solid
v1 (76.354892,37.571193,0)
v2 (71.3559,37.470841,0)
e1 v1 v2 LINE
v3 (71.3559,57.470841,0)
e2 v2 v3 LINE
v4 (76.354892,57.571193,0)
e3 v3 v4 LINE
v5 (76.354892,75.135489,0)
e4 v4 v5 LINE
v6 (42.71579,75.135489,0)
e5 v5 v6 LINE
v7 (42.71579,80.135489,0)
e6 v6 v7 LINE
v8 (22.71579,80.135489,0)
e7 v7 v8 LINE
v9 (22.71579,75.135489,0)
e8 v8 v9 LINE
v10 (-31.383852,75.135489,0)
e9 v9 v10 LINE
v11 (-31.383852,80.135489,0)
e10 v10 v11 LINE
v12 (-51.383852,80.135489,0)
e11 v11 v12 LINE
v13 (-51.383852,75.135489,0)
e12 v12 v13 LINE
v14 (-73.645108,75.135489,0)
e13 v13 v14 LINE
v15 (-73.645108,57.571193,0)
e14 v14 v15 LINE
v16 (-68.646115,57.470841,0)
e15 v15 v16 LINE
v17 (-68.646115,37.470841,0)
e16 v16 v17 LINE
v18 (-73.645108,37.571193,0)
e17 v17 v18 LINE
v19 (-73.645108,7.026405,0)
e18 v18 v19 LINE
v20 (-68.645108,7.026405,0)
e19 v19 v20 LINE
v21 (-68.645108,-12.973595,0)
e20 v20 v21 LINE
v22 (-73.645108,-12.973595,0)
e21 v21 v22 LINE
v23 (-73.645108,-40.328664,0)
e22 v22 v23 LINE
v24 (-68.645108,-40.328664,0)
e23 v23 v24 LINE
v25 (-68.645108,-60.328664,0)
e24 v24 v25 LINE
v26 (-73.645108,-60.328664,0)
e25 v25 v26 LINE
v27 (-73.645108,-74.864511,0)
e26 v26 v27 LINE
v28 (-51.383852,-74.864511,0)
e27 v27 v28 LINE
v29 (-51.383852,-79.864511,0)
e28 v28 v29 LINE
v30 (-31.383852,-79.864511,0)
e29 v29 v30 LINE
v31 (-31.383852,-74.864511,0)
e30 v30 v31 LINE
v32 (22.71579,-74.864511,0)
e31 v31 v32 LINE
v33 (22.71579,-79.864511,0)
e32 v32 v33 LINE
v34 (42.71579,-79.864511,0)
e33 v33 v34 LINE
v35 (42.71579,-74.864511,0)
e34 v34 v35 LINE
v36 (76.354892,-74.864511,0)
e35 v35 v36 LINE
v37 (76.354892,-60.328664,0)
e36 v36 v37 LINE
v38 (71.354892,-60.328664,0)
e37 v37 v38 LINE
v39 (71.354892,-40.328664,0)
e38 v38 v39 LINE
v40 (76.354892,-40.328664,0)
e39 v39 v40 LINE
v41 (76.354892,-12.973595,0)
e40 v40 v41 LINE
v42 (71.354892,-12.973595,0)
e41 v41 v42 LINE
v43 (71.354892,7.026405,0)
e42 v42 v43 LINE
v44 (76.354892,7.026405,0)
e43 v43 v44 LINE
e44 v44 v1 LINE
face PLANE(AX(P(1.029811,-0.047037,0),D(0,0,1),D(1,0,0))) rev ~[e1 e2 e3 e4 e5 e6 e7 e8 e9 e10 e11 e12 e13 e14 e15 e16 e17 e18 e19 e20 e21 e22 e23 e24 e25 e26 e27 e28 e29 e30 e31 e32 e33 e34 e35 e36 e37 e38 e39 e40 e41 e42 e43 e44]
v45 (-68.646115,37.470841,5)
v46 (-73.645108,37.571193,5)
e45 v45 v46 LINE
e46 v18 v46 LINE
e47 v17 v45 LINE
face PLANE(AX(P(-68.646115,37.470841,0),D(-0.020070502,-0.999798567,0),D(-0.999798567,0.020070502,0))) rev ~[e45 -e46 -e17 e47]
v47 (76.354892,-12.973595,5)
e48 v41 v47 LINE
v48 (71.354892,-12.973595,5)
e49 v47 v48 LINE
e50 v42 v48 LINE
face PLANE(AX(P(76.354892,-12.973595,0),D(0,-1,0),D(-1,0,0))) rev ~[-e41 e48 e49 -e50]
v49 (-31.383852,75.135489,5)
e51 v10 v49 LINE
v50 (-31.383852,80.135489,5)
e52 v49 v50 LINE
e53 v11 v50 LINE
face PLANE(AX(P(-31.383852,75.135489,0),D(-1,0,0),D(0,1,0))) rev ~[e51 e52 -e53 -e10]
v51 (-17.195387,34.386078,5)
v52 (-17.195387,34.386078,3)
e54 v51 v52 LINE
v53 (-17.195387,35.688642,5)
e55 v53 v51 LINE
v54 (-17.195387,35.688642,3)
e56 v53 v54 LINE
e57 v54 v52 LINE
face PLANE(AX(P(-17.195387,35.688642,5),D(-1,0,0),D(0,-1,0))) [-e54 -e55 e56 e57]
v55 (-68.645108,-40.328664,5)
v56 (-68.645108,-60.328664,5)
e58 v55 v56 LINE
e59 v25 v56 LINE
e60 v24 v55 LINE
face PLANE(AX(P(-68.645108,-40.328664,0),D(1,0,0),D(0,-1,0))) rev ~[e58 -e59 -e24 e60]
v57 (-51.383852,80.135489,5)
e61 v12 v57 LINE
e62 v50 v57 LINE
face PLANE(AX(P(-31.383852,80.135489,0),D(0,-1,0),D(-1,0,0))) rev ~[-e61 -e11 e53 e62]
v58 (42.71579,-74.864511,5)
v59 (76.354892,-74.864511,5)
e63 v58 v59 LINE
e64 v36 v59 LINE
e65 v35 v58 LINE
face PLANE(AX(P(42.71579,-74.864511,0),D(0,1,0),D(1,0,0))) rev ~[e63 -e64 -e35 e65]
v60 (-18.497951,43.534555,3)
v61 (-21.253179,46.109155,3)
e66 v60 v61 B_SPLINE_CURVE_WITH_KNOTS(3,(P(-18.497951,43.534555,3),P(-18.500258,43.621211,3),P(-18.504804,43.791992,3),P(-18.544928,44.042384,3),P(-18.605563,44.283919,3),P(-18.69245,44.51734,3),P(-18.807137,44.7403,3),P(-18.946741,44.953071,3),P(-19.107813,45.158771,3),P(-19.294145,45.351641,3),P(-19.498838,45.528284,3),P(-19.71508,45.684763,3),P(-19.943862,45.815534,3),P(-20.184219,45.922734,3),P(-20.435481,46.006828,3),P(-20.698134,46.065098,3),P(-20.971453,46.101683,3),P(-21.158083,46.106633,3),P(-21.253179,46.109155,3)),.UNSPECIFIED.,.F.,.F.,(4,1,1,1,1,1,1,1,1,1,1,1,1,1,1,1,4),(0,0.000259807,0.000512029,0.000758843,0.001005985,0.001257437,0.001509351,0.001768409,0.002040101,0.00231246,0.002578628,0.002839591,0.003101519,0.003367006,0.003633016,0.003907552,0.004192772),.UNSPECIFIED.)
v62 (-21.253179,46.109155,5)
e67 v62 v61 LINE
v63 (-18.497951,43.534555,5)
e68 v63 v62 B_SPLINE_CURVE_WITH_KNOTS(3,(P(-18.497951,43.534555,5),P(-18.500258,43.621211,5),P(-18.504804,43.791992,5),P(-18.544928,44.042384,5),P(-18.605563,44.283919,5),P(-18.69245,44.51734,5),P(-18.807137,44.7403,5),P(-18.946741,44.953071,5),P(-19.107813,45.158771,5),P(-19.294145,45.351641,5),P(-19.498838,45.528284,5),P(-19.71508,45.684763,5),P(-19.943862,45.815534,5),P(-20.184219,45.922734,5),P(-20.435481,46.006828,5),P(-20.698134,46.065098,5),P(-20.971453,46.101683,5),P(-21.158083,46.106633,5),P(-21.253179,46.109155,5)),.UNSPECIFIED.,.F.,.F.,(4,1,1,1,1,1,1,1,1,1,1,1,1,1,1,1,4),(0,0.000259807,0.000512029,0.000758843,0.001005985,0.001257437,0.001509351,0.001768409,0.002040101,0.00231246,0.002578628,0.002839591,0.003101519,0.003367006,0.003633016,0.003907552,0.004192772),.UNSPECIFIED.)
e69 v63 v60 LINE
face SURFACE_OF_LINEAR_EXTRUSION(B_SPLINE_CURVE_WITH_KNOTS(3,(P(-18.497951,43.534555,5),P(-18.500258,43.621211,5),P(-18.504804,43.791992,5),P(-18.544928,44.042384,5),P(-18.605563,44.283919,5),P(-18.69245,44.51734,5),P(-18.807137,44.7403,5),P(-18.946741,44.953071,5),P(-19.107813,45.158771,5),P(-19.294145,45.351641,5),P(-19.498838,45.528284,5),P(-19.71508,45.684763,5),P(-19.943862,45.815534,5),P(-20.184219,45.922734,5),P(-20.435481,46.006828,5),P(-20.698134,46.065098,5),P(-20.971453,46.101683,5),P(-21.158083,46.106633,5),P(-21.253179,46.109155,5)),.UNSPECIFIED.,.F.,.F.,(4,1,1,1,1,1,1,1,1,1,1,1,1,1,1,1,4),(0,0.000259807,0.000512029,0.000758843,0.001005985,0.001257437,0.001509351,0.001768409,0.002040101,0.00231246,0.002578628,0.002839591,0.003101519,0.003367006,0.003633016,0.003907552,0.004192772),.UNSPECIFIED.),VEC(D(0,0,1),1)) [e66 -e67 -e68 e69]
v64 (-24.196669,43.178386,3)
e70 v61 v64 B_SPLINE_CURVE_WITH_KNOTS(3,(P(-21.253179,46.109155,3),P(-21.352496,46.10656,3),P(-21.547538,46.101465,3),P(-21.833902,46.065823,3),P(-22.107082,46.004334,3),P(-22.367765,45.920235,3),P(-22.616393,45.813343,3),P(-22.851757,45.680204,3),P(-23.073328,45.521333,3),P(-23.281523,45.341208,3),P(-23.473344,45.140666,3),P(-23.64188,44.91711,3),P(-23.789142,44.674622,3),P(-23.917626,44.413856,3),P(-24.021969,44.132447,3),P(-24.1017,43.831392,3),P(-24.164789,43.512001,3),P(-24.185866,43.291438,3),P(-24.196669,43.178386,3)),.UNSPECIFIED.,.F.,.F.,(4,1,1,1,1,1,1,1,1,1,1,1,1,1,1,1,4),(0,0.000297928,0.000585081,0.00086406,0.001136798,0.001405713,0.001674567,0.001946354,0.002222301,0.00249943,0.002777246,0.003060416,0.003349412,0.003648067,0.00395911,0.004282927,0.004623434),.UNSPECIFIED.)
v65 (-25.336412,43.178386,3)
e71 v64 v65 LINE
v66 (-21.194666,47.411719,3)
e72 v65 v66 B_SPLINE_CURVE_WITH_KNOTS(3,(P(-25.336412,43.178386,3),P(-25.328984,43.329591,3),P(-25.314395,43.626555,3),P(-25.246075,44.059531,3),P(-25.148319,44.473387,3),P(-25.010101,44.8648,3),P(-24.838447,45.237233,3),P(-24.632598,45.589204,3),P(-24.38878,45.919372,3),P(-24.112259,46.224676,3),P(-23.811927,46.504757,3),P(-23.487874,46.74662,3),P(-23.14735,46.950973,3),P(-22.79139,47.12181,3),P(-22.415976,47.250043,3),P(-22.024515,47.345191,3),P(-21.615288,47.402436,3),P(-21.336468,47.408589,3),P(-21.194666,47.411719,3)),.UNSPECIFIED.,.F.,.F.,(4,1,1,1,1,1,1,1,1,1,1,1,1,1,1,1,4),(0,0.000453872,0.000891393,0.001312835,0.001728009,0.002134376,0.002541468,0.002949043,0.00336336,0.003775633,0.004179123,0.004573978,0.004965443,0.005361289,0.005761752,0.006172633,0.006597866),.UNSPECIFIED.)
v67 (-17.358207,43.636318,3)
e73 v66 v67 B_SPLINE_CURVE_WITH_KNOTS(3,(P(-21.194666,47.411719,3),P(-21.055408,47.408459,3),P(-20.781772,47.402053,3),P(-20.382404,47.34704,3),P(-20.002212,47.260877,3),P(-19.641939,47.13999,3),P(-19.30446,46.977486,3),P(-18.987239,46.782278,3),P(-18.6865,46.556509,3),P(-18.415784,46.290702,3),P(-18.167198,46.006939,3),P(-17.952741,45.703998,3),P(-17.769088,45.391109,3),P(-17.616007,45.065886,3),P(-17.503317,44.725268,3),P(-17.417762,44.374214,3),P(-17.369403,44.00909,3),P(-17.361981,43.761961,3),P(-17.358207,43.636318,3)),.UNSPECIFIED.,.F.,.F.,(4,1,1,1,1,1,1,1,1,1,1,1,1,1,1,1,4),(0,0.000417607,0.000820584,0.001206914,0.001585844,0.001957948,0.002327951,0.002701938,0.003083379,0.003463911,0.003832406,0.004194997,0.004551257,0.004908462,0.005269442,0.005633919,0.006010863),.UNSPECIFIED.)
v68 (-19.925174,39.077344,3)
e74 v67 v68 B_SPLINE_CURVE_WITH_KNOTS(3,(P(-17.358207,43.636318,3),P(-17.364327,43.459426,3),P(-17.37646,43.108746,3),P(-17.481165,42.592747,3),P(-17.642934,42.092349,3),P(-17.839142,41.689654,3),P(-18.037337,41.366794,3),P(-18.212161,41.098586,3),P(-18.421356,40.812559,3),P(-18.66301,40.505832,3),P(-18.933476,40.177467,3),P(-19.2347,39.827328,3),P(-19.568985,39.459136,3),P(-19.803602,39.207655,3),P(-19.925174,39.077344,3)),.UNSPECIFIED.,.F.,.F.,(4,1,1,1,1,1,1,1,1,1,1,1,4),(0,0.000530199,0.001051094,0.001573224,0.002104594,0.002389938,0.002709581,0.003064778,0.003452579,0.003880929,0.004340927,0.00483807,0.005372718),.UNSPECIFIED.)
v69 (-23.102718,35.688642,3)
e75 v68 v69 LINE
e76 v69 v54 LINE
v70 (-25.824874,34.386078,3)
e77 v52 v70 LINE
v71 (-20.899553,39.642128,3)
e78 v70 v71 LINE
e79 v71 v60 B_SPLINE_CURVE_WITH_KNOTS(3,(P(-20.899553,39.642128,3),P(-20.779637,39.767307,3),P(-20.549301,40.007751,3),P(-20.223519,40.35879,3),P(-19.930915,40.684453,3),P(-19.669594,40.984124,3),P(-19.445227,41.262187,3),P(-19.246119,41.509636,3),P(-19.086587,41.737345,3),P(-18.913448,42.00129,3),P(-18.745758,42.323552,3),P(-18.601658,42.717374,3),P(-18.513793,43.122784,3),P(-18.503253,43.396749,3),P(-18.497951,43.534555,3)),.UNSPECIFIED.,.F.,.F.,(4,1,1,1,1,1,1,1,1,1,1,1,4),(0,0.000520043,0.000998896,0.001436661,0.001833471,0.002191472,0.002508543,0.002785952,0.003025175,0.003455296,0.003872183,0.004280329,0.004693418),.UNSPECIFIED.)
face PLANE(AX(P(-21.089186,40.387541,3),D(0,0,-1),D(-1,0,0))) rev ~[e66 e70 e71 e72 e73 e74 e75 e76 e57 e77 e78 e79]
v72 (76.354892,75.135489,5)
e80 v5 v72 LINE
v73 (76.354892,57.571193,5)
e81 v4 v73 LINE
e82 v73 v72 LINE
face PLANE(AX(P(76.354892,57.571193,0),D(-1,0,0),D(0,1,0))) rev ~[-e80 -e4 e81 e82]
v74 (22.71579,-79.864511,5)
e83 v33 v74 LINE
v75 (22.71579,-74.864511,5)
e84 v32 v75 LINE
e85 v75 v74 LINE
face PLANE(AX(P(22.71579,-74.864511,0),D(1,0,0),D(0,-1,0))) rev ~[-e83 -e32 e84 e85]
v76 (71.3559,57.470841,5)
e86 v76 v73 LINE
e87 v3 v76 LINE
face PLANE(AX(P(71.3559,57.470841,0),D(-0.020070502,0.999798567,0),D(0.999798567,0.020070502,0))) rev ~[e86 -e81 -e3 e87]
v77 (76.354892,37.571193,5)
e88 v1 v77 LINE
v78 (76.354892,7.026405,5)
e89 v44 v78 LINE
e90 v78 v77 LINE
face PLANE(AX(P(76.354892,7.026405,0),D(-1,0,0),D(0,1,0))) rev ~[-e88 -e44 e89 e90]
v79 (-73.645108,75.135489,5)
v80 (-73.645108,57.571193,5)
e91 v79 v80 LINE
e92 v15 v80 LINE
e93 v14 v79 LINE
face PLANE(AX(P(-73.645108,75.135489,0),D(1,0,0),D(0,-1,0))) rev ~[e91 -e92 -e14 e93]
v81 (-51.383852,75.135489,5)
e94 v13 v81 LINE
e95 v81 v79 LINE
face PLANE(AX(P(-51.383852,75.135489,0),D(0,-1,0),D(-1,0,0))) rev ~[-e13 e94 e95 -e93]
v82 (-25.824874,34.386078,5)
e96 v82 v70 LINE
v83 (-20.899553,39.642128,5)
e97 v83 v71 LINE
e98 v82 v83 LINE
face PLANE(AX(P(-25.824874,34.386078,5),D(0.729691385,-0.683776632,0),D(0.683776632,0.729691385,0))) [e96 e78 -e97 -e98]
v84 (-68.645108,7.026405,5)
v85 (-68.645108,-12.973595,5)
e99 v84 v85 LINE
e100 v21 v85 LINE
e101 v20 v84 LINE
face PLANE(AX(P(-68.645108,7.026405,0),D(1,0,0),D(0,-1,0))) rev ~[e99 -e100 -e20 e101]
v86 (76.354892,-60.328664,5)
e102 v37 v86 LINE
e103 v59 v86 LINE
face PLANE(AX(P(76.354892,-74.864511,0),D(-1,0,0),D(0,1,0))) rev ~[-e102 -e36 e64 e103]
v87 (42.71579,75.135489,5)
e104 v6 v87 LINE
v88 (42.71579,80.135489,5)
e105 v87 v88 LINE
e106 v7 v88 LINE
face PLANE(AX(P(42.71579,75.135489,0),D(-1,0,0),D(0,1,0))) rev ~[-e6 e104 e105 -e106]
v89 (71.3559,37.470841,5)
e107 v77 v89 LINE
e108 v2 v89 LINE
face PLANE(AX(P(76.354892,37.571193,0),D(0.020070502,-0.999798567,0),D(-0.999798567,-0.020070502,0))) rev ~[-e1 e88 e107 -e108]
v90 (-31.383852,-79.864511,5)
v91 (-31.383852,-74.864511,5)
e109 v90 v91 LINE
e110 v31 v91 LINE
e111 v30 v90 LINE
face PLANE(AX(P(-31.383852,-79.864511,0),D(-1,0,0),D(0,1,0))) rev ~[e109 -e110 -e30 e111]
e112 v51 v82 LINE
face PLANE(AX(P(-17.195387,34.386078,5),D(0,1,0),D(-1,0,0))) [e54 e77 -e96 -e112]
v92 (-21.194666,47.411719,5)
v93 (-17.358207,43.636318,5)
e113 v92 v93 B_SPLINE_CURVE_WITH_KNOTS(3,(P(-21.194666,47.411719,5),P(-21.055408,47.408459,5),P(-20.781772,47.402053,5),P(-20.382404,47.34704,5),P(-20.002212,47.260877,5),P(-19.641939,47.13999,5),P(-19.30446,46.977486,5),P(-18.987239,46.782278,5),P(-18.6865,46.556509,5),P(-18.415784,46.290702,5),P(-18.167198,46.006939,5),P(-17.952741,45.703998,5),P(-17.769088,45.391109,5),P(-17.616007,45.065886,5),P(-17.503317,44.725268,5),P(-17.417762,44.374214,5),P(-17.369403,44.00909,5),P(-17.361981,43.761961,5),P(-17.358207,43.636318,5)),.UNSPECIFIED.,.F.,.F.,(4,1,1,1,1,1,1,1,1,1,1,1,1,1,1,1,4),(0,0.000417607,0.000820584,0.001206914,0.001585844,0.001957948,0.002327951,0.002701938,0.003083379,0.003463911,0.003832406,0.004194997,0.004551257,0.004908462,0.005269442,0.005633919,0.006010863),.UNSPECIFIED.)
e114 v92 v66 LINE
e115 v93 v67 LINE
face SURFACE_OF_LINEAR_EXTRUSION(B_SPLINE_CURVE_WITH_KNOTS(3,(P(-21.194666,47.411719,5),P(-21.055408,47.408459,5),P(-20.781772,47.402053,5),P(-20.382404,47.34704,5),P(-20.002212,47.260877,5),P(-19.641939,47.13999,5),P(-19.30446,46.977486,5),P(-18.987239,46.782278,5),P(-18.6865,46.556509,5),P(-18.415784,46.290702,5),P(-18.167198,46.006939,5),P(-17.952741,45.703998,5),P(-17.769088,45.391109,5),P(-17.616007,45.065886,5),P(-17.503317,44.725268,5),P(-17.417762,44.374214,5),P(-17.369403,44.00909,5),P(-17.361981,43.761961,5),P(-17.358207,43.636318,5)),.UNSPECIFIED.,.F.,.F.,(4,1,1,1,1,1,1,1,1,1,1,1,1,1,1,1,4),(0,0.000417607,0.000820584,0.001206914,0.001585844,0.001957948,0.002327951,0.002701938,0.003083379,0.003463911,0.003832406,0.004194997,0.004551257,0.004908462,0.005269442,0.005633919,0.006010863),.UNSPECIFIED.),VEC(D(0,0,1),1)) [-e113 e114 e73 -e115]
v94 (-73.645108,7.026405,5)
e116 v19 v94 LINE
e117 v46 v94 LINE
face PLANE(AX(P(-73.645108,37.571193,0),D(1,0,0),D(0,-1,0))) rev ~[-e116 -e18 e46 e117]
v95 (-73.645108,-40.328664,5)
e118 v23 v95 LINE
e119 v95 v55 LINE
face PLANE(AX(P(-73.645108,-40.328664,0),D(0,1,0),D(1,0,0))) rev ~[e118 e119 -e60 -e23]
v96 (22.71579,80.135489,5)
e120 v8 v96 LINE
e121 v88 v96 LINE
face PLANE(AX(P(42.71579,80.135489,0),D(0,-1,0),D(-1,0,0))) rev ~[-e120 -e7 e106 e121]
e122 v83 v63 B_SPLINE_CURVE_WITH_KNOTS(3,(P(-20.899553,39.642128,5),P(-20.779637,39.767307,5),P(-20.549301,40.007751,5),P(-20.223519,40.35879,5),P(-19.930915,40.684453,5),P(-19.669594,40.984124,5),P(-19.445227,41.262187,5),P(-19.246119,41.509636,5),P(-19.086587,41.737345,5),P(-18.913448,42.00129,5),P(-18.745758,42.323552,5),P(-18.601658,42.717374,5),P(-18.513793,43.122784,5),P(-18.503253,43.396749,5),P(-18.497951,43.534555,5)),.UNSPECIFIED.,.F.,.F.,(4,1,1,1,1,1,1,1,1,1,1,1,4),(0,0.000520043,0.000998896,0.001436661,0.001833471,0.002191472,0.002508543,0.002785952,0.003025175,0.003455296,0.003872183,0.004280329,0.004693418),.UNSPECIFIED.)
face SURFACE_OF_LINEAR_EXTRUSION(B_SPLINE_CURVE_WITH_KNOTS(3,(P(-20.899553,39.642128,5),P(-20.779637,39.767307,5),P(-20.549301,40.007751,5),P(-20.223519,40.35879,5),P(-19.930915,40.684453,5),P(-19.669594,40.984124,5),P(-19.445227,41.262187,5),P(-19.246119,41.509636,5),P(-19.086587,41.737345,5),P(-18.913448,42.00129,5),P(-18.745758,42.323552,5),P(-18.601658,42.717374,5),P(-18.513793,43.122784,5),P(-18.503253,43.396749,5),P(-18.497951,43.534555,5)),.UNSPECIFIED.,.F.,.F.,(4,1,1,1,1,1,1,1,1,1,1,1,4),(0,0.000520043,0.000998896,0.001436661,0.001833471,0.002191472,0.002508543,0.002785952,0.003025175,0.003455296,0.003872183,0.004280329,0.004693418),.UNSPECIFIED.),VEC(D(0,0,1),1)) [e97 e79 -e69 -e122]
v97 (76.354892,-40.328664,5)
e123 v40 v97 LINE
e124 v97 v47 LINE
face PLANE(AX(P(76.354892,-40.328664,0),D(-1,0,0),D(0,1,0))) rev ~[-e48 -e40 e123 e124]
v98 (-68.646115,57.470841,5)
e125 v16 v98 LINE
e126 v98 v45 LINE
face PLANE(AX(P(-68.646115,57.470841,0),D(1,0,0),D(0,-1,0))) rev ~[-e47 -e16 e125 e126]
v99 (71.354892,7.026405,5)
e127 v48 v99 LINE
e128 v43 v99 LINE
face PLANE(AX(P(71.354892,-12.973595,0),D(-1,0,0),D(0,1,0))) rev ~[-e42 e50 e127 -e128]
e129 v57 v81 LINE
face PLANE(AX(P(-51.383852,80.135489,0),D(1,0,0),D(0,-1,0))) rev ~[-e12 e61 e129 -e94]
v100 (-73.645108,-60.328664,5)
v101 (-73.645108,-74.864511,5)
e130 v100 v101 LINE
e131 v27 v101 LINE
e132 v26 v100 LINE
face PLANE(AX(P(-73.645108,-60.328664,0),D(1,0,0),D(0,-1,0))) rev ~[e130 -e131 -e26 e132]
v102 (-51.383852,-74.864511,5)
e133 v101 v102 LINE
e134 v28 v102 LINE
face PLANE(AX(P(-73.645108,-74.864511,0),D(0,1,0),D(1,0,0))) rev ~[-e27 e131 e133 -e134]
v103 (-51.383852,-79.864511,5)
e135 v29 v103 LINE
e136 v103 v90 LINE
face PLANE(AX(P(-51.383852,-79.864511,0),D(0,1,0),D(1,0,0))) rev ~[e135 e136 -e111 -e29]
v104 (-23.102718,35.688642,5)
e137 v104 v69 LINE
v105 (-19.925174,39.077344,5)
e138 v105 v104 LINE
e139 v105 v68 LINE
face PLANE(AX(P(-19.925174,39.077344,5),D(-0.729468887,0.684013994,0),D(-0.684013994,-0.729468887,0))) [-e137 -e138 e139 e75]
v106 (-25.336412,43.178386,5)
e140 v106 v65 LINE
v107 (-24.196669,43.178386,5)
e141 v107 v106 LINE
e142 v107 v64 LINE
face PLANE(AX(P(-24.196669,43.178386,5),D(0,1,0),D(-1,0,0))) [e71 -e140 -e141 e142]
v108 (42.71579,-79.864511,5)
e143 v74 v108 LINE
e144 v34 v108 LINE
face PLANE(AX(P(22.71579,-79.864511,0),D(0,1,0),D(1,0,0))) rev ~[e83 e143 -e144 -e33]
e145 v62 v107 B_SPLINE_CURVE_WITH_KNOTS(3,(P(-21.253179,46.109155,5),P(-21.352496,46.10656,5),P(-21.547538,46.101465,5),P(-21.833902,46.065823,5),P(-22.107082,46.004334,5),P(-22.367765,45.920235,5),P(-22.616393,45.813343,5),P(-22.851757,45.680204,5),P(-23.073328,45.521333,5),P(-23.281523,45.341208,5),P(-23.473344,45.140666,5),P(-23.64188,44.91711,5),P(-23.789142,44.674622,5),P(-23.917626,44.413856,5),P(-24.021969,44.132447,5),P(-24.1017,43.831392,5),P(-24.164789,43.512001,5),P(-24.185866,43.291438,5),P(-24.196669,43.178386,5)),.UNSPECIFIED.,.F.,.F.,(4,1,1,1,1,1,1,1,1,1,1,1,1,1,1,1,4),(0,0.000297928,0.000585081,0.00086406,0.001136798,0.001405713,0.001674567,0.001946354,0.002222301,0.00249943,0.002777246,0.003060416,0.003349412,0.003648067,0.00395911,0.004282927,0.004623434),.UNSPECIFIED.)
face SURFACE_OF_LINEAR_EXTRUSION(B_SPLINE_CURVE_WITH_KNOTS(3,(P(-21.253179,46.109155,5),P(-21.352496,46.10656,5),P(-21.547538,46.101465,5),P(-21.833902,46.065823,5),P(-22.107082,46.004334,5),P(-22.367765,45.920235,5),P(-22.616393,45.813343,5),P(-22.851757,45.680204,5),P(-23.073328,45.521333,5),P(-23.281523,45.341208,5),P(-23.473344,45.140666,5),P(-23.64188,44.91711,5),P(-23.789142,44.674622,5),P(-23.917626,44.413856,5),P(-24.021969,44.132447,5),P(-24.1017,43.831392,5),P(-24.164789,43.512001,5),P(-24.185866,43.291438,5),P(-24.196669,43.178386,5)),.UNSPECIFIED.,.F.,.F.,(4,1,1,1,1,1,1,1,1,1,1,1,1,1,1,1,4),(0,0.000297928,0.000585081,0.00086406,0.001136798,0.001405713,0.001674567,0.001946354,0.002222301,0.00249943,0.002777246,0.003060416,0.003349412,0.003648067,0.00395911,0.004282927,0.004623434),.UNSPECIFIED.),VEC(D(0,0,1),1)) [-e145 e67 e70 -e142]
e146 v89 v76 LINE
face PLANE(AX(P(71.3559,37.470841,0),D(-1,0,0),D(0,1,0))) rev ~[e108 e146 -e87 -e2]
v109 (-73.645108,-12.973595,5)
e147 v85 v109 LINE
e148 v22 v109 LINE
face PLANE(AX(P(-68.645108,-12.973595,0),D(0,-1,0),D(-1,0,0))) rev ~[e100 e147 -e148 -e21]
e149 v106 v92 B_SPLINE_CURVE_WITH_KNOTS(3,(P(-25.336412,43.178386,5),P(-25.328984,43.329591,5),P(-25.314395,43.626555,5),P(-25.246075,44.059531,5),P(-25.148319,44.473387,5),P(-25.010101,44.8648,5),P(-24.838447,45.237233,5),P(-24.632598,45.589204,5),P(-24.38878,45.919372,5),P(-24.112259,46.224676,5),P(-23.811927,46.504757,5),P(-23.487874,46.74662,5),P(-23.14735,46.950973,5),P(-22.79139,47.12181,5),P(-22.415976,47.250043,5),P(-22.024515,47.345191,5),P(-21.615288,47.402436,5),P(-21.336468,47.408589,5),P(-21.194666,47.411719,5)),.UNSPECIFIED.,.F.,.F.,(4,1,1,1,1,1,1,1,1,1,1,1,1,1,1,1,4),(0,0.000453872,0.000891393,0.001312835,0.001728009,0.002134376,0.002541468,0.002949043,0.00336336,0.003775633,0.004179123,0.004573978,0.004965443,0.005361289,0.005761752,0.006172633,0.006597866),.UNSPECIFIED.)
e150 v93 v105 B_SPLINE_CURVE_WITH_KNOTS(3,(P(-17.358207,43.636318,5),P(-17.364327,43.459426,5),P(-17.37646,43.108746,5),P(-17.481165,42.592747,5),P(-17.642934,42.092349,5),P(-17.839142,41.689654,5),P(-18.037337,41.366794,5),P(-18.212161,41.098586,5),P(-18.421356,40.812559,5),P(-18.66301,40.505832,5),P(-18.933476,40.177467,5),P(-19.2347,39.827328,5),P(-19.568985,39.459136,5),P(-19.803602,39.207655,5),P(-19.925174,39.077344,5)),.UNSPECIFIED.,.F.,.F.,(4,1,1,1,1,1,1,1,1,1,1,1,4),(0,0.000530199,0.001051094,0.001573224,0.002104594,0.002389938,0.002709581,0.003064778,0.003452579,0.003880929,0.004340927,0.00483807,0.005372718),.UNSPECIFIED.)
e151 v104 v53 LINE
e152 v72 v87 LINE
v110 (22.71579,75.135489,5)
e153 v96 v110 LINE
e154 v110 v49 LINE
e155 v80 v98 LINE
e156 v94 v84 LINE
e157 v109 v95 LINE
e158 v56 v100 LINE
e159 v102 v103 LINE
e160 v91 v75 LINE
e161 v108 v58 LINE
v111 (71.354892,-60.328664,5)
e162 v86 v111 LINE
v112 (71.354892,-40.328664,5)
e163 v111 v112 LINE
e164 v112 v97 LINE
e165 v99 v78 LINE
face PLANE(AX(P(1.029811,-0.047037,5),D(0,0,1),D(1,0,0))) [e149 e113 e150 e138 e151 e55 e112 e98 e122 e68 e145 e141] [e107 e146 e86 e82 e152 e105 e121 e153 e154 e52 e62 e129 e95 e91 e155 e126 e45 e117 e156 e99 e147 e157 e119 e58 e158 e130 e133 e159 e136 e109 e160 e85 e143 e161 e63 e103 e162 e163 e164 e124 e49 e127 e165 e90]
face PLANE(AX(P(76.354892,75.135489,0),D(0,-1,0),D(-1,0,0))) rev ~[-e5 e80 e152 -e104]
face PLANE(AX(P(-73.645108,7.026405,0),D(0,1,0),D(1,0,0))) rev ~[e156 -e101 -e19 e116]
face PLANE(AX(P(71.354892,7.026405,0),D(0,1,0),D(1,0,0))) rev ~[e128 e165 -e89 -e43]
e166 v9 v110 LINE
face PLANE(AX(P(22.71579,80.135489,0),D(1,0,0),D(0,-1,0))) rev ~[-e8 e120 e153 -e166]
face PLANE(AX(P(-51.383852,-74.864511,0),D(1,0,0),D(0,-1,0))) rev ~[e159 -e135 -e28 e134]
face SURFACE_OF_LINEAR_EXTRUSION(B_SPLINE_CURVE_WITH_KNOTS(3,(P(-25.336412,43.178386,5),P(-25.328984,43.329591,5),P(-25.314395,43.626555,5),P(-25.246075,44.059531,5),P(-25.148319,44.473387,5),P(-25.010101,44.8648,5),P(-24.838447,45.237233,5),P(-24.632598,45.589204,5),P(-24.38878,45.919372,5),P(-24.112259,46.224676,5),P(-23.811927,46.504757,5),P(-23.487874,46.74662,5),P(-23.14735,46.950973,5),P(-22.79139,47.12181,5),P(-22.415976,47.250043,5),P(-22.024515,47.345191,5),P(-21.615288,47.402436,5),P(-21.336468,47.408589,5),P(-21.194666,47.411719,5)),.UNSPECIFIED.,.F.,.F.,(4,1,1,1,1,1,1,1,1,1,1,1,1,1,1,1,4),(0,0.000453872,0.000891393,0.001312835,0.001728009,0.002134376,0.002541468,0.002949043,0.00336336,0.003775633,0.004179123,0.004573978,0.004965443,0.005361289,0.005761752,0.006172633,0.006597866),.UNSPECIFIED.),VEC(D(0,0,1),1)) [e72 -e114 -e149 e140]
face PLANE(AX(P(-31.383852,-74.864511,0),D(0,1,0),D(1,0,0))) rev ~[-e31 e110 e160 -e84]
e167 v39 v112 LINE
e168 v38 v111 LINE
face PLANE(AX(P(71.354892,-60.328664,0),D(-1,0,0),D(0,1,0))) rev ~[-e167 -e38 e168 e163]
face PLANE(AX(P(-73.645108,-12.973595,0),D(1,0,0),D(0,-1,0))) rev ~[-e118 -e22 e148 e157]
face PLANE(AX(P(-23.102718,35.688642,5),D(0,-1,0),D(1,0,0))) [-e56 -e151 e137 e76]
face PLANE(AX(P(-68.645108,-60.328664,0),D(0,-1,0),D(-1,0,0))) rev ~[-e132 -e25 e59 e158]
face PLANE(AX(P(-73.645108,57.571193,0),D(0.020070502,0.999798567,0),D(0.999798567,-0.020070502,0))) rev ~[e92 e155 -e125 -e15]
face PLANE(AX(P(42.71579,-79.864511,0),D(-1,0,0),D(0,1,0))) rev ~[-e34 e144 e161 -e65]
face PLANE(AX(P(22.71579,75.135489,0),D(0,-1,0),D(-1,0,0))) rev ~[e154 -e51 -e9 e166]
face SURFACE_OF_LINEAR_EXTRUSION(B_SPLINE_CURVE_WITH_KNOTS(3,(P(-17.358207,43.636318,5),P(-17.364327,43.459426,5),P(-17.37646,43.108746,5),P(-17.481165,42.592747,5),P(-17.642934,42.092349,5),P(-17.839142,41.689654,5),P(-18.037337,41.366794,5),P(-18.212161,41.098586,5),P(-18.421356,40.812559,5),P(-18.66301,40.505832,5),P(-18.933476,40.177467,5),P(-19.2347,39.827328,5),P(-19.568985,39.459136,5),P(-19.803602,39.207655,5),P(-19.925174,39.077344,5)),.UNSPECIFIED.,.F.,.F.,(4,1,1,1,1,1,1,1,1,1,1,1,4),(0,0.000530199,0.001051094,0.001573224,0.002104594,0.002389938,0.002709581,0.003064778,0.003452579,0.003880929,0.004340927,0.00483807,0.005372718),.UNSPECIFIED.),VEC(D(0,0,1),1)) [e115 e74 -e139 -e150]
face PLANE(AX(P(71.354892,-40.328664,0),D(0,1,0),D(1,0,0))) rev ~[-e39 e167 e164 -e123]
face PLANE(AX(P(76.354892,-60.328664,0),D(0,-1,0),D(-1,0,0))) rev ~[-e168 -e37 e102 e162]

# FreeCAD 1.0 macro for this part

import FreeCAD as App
import Part
import Sketcher
from FreeCAD import Vector
Q = App.Units.Quantity

doc = App.newDocument("Part")
body = doc.addObject("PartDesign::Body", "Body")

# Sketch on XY plane
sketch1 = body.newObject("Sketcher::SketchObject", "Sketch")
sketch1.AttachmentSupport = (doc.getObject("XY_Plane"), [""])
sketch1.MapMode = "FlatFace"
sketch1.addGeometry(Part.LineSegment(Vector(-73.645108, -74.864511, 0), Vector(-51.383852, -74.864511, 0)), False)
sketch1.addGeometry(Part.LineSegment(Vector(-51.383852, -74.864511, 0), Vector(-51.383852, -79.864511, 0)), False)
sketch1.addGeometry(Part.LineSegment(Vector(-51.383852, -79.864511, 0), Vector(-31.383852, -79.864511, 0)), False)
sketch1.addGeometry(Part.LineSegment(Vector(-31.383852, -79.864511, 0), Vector(-31.383852, -74.864511, 0)), False)
sketch1.addGeometry(Part.LineSegment(Vector(-31.383852, -74.864511, 0), Vector(22.71579, -74.864511, 0)), False)
sketch1.addGeometry(Part.LineSegment(Vector(22.71579, -74.864511, 0), Vector(22.71579, -79.864511, 0)), False)
sketch1.addGeometry(Part.LineSegment(Vector(22.71579, -79.864511, 0), Vector(42.71579, -79.864511, 0)), False)
sketch1.addGeometry(Part.LineSegment(Vector(42.71579, -79.864511, 0), Vector(42.71579, -74.864511, 0)), False)
sketch1.addGeometry(Part.LineSegment(Vector(42.71579, -74.864511, 0), Vector(76.354892, -74.864511, 0)), False)
sketch1.addGeometry(Part.LineSegment(Vector(76.354892, -74.864511, 0), Vector(76.354892, -60.328664, 0)), False)
sketch1.addGeometry(Part.LineSegment(Vector(76.354892, -60.328664, 0), Vector(71.354892, -60.328664, 0)), False)
sketch1.addGeometry(Part.LineSegment(Vector(71.354892, -60.328664, 0), Vector(71.354892, -40.328664, 0)), False)
sketch1.addGeometry(Part.LineSegment(Vector(71.354892, -40.328664, 0), Vector(76.354892, -40.328664, 0)), False)
sketch1.addGeometry(Part.LineSegment(Vector(76.354892, -40.328664, 0), Vector(76.354892, -12.973595, 0)), False)
sketch1.addGeometry(Part.LineSegment(Vector(76.354892, -12.973595, 0), Vector(71.354892, -12.973595, 0)), False)
sketch1.addGeometry(Part.LineSegment(Vector(71.354892, -12.973595, 0), Vector(71.354892, 7.026405, 0)), False)
sketch1.addGeometry(Part.LineSegment(Vector(71.354892, 7.026405, 0), Vector(76.354892, 7.026405, 0)), False)
sketch1.addGeometry(Part.LineSegment(Vector(76.354892, 7.026405, 0), Vector(76.354892, 37.571193, 0)), False)
sketch1.addGeometry(Part.LineSegment(Vector(76.354892, 37.571193, 0), Vector(71.3559, 37.470841, 0)), False)
sketch1.addGeometry(Part.LineSegment(Vector(71.3559, 37.470841, 0), Vector(71.3559, 57.470841, 0)), False)
sketch1.addGeometry(Part.LineSegment(Vector(71.3559, 57.470841, 0), Vector(76.354892, 57.571193, 0)), False)
sketch1.addGeometry(Part.LineSegment(Vector(76.354892, 57.571193, 0), Vector(76.354892, 75.135489, 0)), False)
sketch1.addGeometry(Part.LineSegment(Vector(76.354892, 75.135489, 0), Vector(42.71579, 75.135489, 0)), False)
sketch1.addGeometry(Part.LineSegment(Vector(42.71579, 75.135489, 0), Vector(42.71579, 80.135489, 0)), False)
sketch1.addGeometry(Part.LineSegment(Vector(42.71579, 80.135489, 0), Vector(22.71579, 80.135489, 0)), False)
sketch1.addGeometry(Part.LineSegment(Vector(22.71579, 80.135489, 0), Vector(22.71579, 75.135489, 0)), False)
sketch1.addGeometry(Part.LineSegment(Vector(22.71579, 75.135489, 0), Vector(-31.383852, 75.135489, 0)), False)
sketch1.addGeometry(Part.LineSegment(Vector(-31.383852, 75.135489, 0), Vector(-31.383852, 80.135489, 0)), False)
sketch1.addGeometry(Part.LineSegment(Vector(-31.383852, 80.135489, 0), Vector(-51.383852, 80.135489, 0)), False)
sketch1.addGeometry(Part.LineSegment(Vector(-51.383852, 80.135489, 0), Vector(-51.383852, 75.135489, 0)), False)
sketch1.addGeometry(Part.LineSegment(Vector(-51.383852, 75.135489, 0), Vector(-73.645108, 75.135489, 0)), False)
sketch1.addGeometry(Part.LineSegment(Vector(-73.645108, 75.135489, 0), Vector(-73.645108, 57.571193, 0)), False)
sketch1.addGeometry(Part.LineSegment(Vector(-73.645108, 57.571193, 0), Vector(-68.646115, 57.470841, 0)), False)
sketch1.addGeometry(Part.LineSegment(Vector(-68.646115, 57.470841, 0), Vector(-68.646115, 37.470841, 0)), False)
sketch1.addGeometry(Part.LineSegment(Vector(-68.646115, 37.470841, 0), Vector(-73.645108, 37.571193, 0)), False)
sketch1.addGeometry(Part.LineSegment(Vector(-73.645108, 37.571193, 0), Vector(-73.645108, 7.026405, 0)), False)
sketch1.addGeometry(Part.LineSegment(Vector(-73.645108, 7.026405, 0), Vector(-68.645108, 7.026405, 0)), False)
sketch1.addGeometry(Part.LineSegment(Vector(-68.645108, 7.026405, 0), Vector(-68.645108, -12.973595, 0)), False)
sketch1.addGeometry(Part.LineSegment(Vector(-68.645108, -12.973595, 0), Vector(-73.645108, -12.973595, 0)), False)
sketch1.addGeometry(Part.LineSegment(Vector(-73.645108, -12.973595, 0), Vector(-73.645108, -40.328664, 0)), False)
sketch1.addGeometry(Part.LineSegment(Vector(-73.645108, -40.328664, 0), Vector(-68.645108, -40.328664, 0)), False)
sketch1.addGeometry(Part.LineSegment(Vector(-68.645108, -40.328664, 0), Vector(-68.645108, -60.328664, 0)), False)
sketch1.addGeometry(Part.LineSegment(Vector(-68.645108, -60.328664, 0), Vector(-73.645108, -60.328664, 0)), False)
sketch1.addGeometry(Part.LineSegment(Vector(-73.645108, -60.328664, 0), Vector(-73.645108, -74.864511, 0)), False)
sketch1.addConstraint(Sketcher.Constraint("Coincident", 0, 2, 1, 1))
sketch1.addConstraint(Sketcher.Constraint("Coincident", 1, 2, 2, 1))
sketch1.addConstraint(Sketcher.Constraint("Coincident", 2, 2, 3, 1))
sketch1.addConstraint(Sketcher.Constraint("Coincident", 3, 2, 4, 1))
sketch1.addConstraint(Sketcher.Constraint("Coincident", 4, 2, 5, 1))
sketch1.addConstraint(Sketcher.Constraint("Coincident", 5, 2, 6, 1))
sketch1.addConstraint(Sketcher.Constraint("Coincident", 6, 2, 7, 1))
sketch1.addConstraint(Sketcher.Constraint("Coincident", 7, 2, 8, 1))
sketch1.addConstraint(Sketcher.Constraint("Coincident", 8, 2, 9, 1))
sketch1.addConstraint(Sketcher.Constraint("Coincident", 9, 2, 10, 1))
sketch1.addConstraint(Sketcher.Constraint("Coincident", 10, 2, 11, 1))
sketch1.addConstraint(Sketcher.Constraint("Coincident", 11, 2, 12, 1))
sketch1.addConstraint(Sketcher.Constraint("Coincident", 12, 2, 13, 1))
sketch1.addConstraint(Sketcher.Constraint("Coincident", 13, 2, 14, 1))
sketch1.addConstraint(Sketcher.Constraint("Coincident", 14, 2, 15, 1))
sketch1.addConstraint(Sketcher.Constraint("Coincident", 15, 2, 16, 1))
sketch1.addConstraint(Sketcher.Constraint("Coincident", 16, 2, 17, 1))
sketch1.addConstraint(Sketcher.Constraint("Coincident", 17, 2, 18, 1))
sketch1.addConstraint(Sketcher.Constraint("Coincident", 18, 2, 19, 1))
sketch1.addConstraint(Sketcher.Constraint("Coincident", 19, 2, 20, 1))
sketch1.addConstraint(Sketcher.Constraint("Coincident", 20, 2, 21, 1))
sketch1.addConstraint(Sketcher.Constraint("Coincident", 21, 2, 22, 1))
sketch1.addConstraint(Sketcher.Constraint("Coincident", 22, 2, 23, 1))
sketch1.addConstraint(Sketcher.Constraint("Coincident", 23, 2, 24, 1))
sketch1.addConstraint(Sketcher.Constraint("Coincident", 24, 2, 25, 1))
sketch1.addConstraint(Sketcher.Constraint("Coincident", 25, 2, 26, 1))
sketch1.addConstraint(Sketcher.Constraint("Coincident", 26, 2, 27, 1))
sketch1.addConstraint(Sketcher.Constraint("Coincident", 27, 2, 28, 1))
sketch1.addConstraint(Sketcher.Constraint("Coincident", 28, 2, 29, 1))
sketch1.addConstraint(Sketcher.Constraint("Coincident", 29, 2, 30, 1))
sketch1.addConstraint(Sketcher.Constraint("Coincident", 30, 2, 31, 1))
sketch1.addConstraint(Sketcher.Constraint("Coincident", 31, 2, 32, 1))
sketch1.addConstraint(Sketcher.Constraint("Coincident", 32, 2, 33, 1))
sketch1.addConstraint(Sketcher.Constraint("Coincident", 33, 2, 34, 1))
sketch1.addConstraint(Sketcher.Constraint("Coincident", 34, 2, 35, 1))
sketch1.addConstraint(Sketcher.Constraint("Coincident", 35, 2, 36, 1))
sketch1.addConstraint(Sketcher.Constraint("Coincident", 36, 2, 37, 1))
sketch1.addConstraint(Sketcher.Constraint("Coincident", 37, 2, 38, 1))
sketch1.addConstraint(Sketcher.Constraint("Coincident", 38, 2, 39, 1))
sketch1.addConstraint(Sketcher.Constraint("Coincident", 39, 2, 40, 1))
sketch1.addConstraint(Sketcher.Constraint("Coincident", 40, 2, 41, 1))
sketch1.addConstraint(Sketcher.Constraint("Coincident", 41, 2, 42, 1))
sketch1.addConstraint(Sketcher.Constraint("Coincident", 42, 2, 43, 1))
sketch1.addConstraint(Sketcher.Constraint("Coincident", 43, 2, 0, 1))
sketch1.addConstraint(Sketcher.Constraint("Horizontal", 0))
sketch1.addConstraint(Sketcher.Constraint("Vertical", 1))
sketch1.addConstraint(Sketcher.Constraint("Horizontal", 2))
sketch1.addConstraint(Sketcher.Constraint("Vertical", 3))
sketch1.addConstraint(Sketcher.Constraint("Horizontal", 4))
sketch1.addConstraint(Sketcher.Constraint("Vertical", 5))
sketch1.addConstraint(Sketcher.Constraint("Horizontal", 6))
sketch1.addConstraint(Sketcher.Constraint("Vertical", 7))
sketch1.addConstraint(Sketcher.Constraint("Horizontal", 8))
sketch1.addConstraint(Sketcher.Constraint("Vertical", 9))
sketch1.addConstraint(Sketcher.Constraint("Horizontal", 10))
sketch1.addConstraint(Sketcher.Constraint("Vertical", 11))
sketch1.addConstraint(Sketcher.Constraint("Horizontal", 12))
sketch1.addConstraint(Sketcher.Constraint("Vertical", 13))
sketch1.addConstraint(Sketcher.Constraint("Horizontal", 14))
sketch1.addConstraint(Sketcher.Constraint("Vertical", 15))
sketch1.addConstraint(Sketcher.Constraint("Horizontal", 16))
sketch1.addConstraint(Sketcher.Constraint("Vertical", 17))
sketch1.addConstraint(Sketcher.Constraint("Vertical", 19))
sketch1.addConstraint(Sketcher.Constraint("Vertical", 21))
sketch1.addConstraint(Sketcher.Constraint("Horizontal", 22))
sketch1.addConstraint(Sketcher.Constraint("Vertical", 23))
sketch1.addConstraint(Sketcher.Constraint("Horizontal", 24))
sketch1.addConstraint(Sketcher.Constraint("Vertical", 25))
sketch1.addConstraint(Sketcher.Constraint("Horizontal", 26))
sketch1.addConstraint(Sketcher.Constraint("Vertical", 27))
sketch1.addConstraint(Sketcher.Constraint("Horizontal", 28))
sketch1.addConstraint(Sketcher.Constraint("Vertical", 29))
sketch1.addConstraint(Sketcher.Constraint("Horizontal", 30))
sketch1.addConstraint(Sketcher.Constraint("Vertical", 31))
sketch1.addConstraint(Sketcher.Constraint("Vertical", 33))
sketch1.addConstraint(Sketcher.Constraint("Vertical", 35))
sketch1.addConstraint(Sketcher.Constraint("Horizontal", 36))
sketch1.addConstraint(Sketcher.Constraint("Vertical", 37))
sketch1.addConstraint(Sketcher.Constraint("Horizontal", 38))
sketch1.addConstraint(Sketcher.Constraint("Vertical", 39))
sketch1.addConstraint(Sketcher.Constraint("Horizontal", 40))
sketch1.addConstraint(Sketcher.Constraint("Vertical", 41))
sketch1.addConstraint(Sketcher.Constraint("Horizontal", 42))
sketch1.addConstraint(Sketcher.Constraint("Vertical", 43))
sketch1.addConstraint(Sketcher.Constraint("Parallel", 18, 20))
sketch1.addConstraint(Sketcher.Constraint("Parallel", 32, 34))
sketch1.addConstraint(Sketcher.Constraint("Horizontal", 0, 2, 3, 2))
sketch1.addConstraint(Sketcher.Constraint("Horizontal", 2, 2, 5, 2))
sketch1.addConstraint(Sketcher.Constraint("Horizontal", 4, 2, 7, 2))
sketch1.addConstraint(Sketcher.Constraint("Horizontal", 22, 2, 25, 2))
sketch1.addConstraint(Sketcher.Constraint("Horizontal", 24, 2, 27, 2))
sketch1.addConstraint(Sketcher.Constraint("Horizontal", 26, 2, 29, 2))
sketch1.addConstraint(Sketcher.Constraint("Horizontal", 20, 2, 31, 2))
sketch1.addConstraint(Sketcher.Constraint("Horizontal", 19, 2, 32, 2))
sketch1.addConstraint(Sketcher.Constraint("Horizontal", 18, 2, 33, 2))
sketch1.addConstraint(Sketcher.Constraint("Horizontal", 17, 2, 34, 2))
sketch1.addConstraint(Sketcher.Constraint("Horizontal", 16, 2, 35, 2))
sketch1.addConstraint(Sketcher.Constraint("Horizontal", 14, 2, 37, 2))
sketch1.addConstraint(Sketcher.Constraint("Horizontal", 12, 2, 39, 2))
sketch1.addConstraint(Sketcher.Constraint("Horizontal", 10, 2, 41, 2))
sketch1.addConstraint(Sketcher.Constraint("Vertical", 9, 2, 12, 2))
sketch1.addConstraint(Sketcher.Constraint("Vertical", 11, 2, 14, 2))
sketch1.addConstraint(Sketcher.Constraint("Vertical", 13, 2, 16, 2))
sketch1.addConstraint(Sketcher.Constraint("Vertical", 17, 2, 20, 2))
sketch1.addConstraint(Sketcher.Constraint("Vertical", 7, 2, 22, 2))
sketch1.addConstraint(Sketcher.Constraint("Vertical", 5, 2, 24, 2))
sketch1.addConstraint(Sketcher.Constraint("Vertical", 3, 2, 26, 2))
sketch1.addConstraint(Sketcher.Constraint("Vertical", 1, 2, 28, 2))
sketch1.addConstraint(Sketcher.Constraint("Vertical", 35, 2, 38, 2))
sketch1.addConstraint(Sketcher.Constraint("Vertical", 37, 2, 40, 2))
sketch1.addConstraint(Sketcher.Constraint("Vertical", 39, 2, 42, 2))
sketch1.addConstraint(Sketcher.Constraint("Equal", 2, 6))
sketch1.addConstraint(Sketcher.Constraint("Equal", 16, 36))
sketch1.addConstraint(Sketcher.Constraint("Equal", 42, 1))
sketch1.addConstraint(Sketcher.Constraint("Equal", 28, 11))
sketch1.addConstraint(Sketcher.Constraint("Equal", 11, 15))
sketch1.addConstraint(Sketcher.Constraint("Equal", 15, 19))
sketch1.addConstraint(Sketcher.Constraint("Equal", 7, 23))
sketch1.addConstraint(Sketcher.Constraint("Equal", 20, 32))
sketch1.addConstraint(Sketcher.Constraint("DistanceX", 2, 1, 2, 2, Q("20 mm")))
sketch1.addConstraint(Sketcher.Constraint("DistanceX", 10, 2, 10, 1, Q("5 mm")))
sketch1.addConstraint(Sketcher.Constraint("Distance", 18, Q("5 mm")))
sketch1.addConstraint(Sketcher.Constraint("DistanceX", 4, 1, 4, 2, Q("54.099642 mm")))
sketch1.addConstraint(Sketcher.Constraint("DistanceY", 13, 1, 13, 2, Q("27.355069 mm")))
sketch1.addConstraint(Sketcher.Constraint("DistanceY", 17, 1, 17, 2, Q("30.544789 mm")))
sketch1.addConstraint(Sketcher.Constraint("DistanceX", -1, 1, 18, 2, Q("71.3559 mm")))
sketch1.addConstraint(Sketcher.Constraint("DistanceX", 0, 1, 0, 2, Q("22.261256 mm")))
sketch1.addConstraint(Sketcher.Constraint("DistanceX", 8, 1, 8, 2, Q("33.639103 mm")))
sketch1.addConstraint(Sketcher.Constraint("DistanceY", 9, 1, 9, 2, Q("14.535847 mm")))
sketch1.addConstraint(Sketcher.Constraint("DistanceY", 21, 1, 21, 2, Q("17.564296 mm")))
sketch1.addConstraint(Sketcher.Constraint("DistanceX", 0, 2, -1, 1, Q("51.383852 mm")))
sketch1.addConstraint(Sketcher.Constraint("DistanceY", 0, 2, -1, 1, Q("74.864511 mm")))
pad1 = body.newObject("PartDesign::Pad", "Pad")
pad1.Profile = sketch1
pad1.Length = 5

# Sketch on XY plane
sketch2 = body.newObject("Sketcher::SketchObject", "Sketch001")
sketch2.AttachmentSupport = (doc.getObject("XY_Plane"), [""])
sketch2.MapMode = "FlatFace"
sketch2.AttachmentOffset = App.Placement(Vector(0, 0, 5), App.Rotation())
sketch2.addGeometry(Part.LineSegment(Vector(-25.336412, 43.178386, 0), Vector(-24.196669, 43.178386, 0)), False)
sketch2.addGeometry(Part.BSplineCurve([Vector(-21.253179, 46.109155, 0), Vector(-21.352496, 46.10656, 0), Vector(-21.547538, 46.101465, 0), Vector(-21.833902, 46.065823, 0), Vector(-22.107082, 46.004334, 0), Vector(-22.367765, 45.920235, 0), Vector(-22.616393, 45.813343, 0), Vector(-22.851757, 45.680204, 0), Vector(-23.073328, 45.521333, 0), Vector(-23.281523, 45.341208, 0), Vector(-23.473344, 45.140666, 0), Vector(-23.64188, 44.91711, 0), Vector(-23.789142, 44.674622, 0), Vector(-23.917626, 44.413856, 0), Vector(-24.021969, 44.132447, 0), Vector(-24.1017, 43.831392, 0), Vector(-24.164789, 43.512001, 0), Vector(-24.185866, 43.291438, 0), Vector(-24.196669, 43.178386, 0)], [4, 1, 1, 1, 1, 1, 1, 1, 1, 1, 1, 1, 1, 1, 1, 1, 4], [0, 0.000297928, 0.000585081, 0.00086406, 0.001136798, 0.001405713, 0.001674567, 0.001946354, 0.002222301, 0.00249943, 0.002777246, 0.003060416, 0.003349412, 0.003648067, 0.00395911, 0.004282927, 0.004623434], False, 3, [1, 1, 1, 1, 1, 1, 1, 1, 1, 1, 1, 1, 1, 1, 1, 1, 1, 1, 1], False), False)
sketch2.addGeometry(Part.BSplineCurve([Vector(-18.497951, 43.534555, 0), Vector(-18.500258, 43.621211, 0), Vector(-18.504804, 43.791992, 0), Vector(-18.544928, 44.042384, 0), Vector(-18.605563, 44.283919, 0), Vector(-18.69245, 44.51734, 0), Vector(-18.807137, 44.7403, 0), Vector(-18.946741, 44.953071, 0), Vector(-19.107813, 45.158771, 0), Vector(-19.294145, 45.351641, 0), Vector(-19.498838, 45.528284, 0), Vector(-19.71508, 45.684763, 0), Vector(-19.943862, 45.815534, 0), Vector(-20.184219, 45.922734, 0), Vector(-20.435481, 46.006828, 0), Vector(-20.698134, 46.065098, 0), Vector(-20.971453, 46.101683, 0), Vector(-21.158083, 46.106633, 0), Vector(-21.253179, 46.109155, 0)], [4, 1, 1, 1, 1, 1, 1, 1, 1, 1, 1, 1, 1, 1, 1, 1, 4], [0, 0.000259807, 0.000512029, 0.000758843, 0.001005985, 0.001257437, 0.001509351, 0.001768409, 0.002040101, 0.00231246, 0.002578628, 0.002839591, 0.003101519, 0.003367006, 0.003633016, 0.003907552, 0.004192772], False, 3, [1, 1, 1, 1, 1, 1, 1, 1, 1, 1, 1, 1, 1, 1, 1, 1, 1, 1, 1], False), False)
sketch2.addGeometry(Part.BSplineCurve([Vector(-20.899553, 39.642128, 0), Vector(-20.779637, 39.767307, 0), Vector(-20.549301, 40.007751, 0), Vector(-20.223519, 40.35879, 0), Vector(-19.930915, 40.684453, 0), Vector(-19.669594, 40.984124, 0), Vector(-19.445227, 41.262187, 0), Vector(-19.246119, 41.509636, 0), Vector(-19.086587, 41.737345, 0), Vector(-18.913448, 42.00129, 0), Vector(-18.745758, 42.323552, 0), Vector(-18.601658, 42.717374, 0), Vector(-18.513793, 43.122784, 0), Vector(-18.503253, 43.396749, 0), Vector(-18.497951, 43.534555, 0)], [4, 1, 1, 1, 1, 1, 1, 1, 1, 1, 1, 1, 4], [0, 0.000520043, 0.000998896, 0.001436661, 0.001833471, 0.002191472, 0.002508543, 0.002785952, 0.003025175, 0.003455296, 0.003872183, 0.004280329, 0.004693418], False, 3, [1, 1, 1, 1, 1, 1, 1, 1, 1, 1, 1, 1, 1, 1, 1], False), False)
sketch2.addGeometry(Part.LineSegment(Vector(-20.899553, 39.642128, 0), Vector(-25.824874, 34.386078, 0)), False)
sketch2.addGeometry(Part.LineSegment(Vector(-25.824874, 34.386078, 0), Vector(-17.195387, 34.386078, 0)), False)
sketch2.addGeometry(Part.LineSegment(Vector(-17.195387, 34.386078, 0), Vector(-17.195387, 35.688642, 0)), False)
sketch2.addGeometry(Part.LineSegment(Vector(-17.195387, 35.688642, 0), Vector(-23.102718, 35.688642, 0)), False)
sketch2.addGeometry(Part.LineSegment(Vector(-23.102718, 35.688642, 0), Vector(-19.925174, 39.077344, 0)), False)
sketch2.addGeometry(Part.BSplineCurve([Vector(-17.358207, 43.636318, 0), Vector(-17.364327, 43.459426, 0), Vector(-17.37646, 43.108746, 0), Vector(-17.481165, 42.592747, 0), Vector(-17.642934, 42.092349, 0), Vector(-17.839142, 41.689654, 0), Vector(-18.037337, 41.366794, 0), Vector(-18.212161, 41.098586, 0), Vector(-18.421356, 40.812559, 0), Vector(-18.66301, 40.505832, 0), Vector(-18.933476, 40.177467, 0), Vector(-19.2347, 39.827328, 0), Vector(-19.568985, 39.459136, 0), Vector(-19.803602, 39.207655, 0), Vector(-19.925174, 39.077344, 0)], [4, 1, 1, 1, 1, 1, 1, 1, 1, 1, 1, 1, 4], [0, 0.000530199, 0.001051094, 0.001573224, 0.002104594, 0.002389938, 0.002709581, 0.003064778, 0.003452579, 0.003880929, 0.004340927, 0.00483807, 0.005372718], False, 3, [1, 1, 1, 1, 1, 1, 1, 1, 1, 1, 1, 1, 1, 1, 1], False), False)
sketch2.addGeometry(Part.BSplineCurve([Vector(-21.194666, 47.411719, 0), Vector(-21.055408, 47.408459, 0), Vector(-20.781772, 47.402053, 0), Vector(-20.382404, 47.34704, 0), Vector(-20.002212, 47.260877, 0), Vector(-19.641939, 47.13999, 0), Vector(-19.30446, 46.977486, 0), Vector(-18.987239, 46.782278, 0), Vector(-18.6865, 46.556509, 0), Vector(-18.415784, 46.290702, 0), Vector(-18.167198, 46.006939, 0), Vector(-17.952741, 45.703998, 0), Vector(-17.769088, 45.391109, 0), Vector(-17.616007, 45.065886, 0), Vector(-17.503317, 44.725268, 0), Vector(-17.417762, 44.374214, 0), Vector(-17.369403, 44.00909, 0), Vector(-17.361981, 43.761961, 0), Vector(-17.358207, 43.636318, 0)], [4, 1, 1, 1, 1, 1, 1, 1, 1, 1, 1, 1, 1, 1, 1, 1, 4], [0, 0.000417607, 0.000820584, 0.001206914, 0.001585844, 0.001957948, 0.002327951, 0.002701938, 0.003083379, 0.003463911, 0.003832406, 0.004194997, 0.004551257, 0.004908462, 0.005269442, 0.005633919, 0.006010863], False, 3, [1, 1, 1, 1, 1, 1, 1, 1, 1, 1, 1, 1, 1, 1, 1, 1, 1, 1, 1], False), False)
sketch2.addGeometry(Part.BSplineCurve([Vector(-25.336412, 43.178386, 0), Vector(-25.328984, 43.329591, 0), Vector(-25.314395, 43.626555, 0), Vector(-25.246075, 44.059531, 0), Vector(-25.148319, 44.473387, 0), Vector(-25.010101, 44.8648, 0), Vector(-24.838447, 45.237233, 0), Vector(-24.632598, 45.589204, 0), Vector(-24.38878, 45.919372, 0), Vector(-24.112259, 46.224676, 0), Vector(-23.811927, 46.504757, 0), Vector(-23.487874, 46.74662, 0), Vector(-23.14735, 46.950973, 0), Vector(-22.79139, 47.12181, 0), Vector(-22.415976, 47.250043, 0), Vector(-22.024515, 47.345191, 0), Vector(-21.615288, 47.402436, 0), Vector(-21.336468, 47.408589, 0), Vector(-21.194666, 47.411719, 0)], [4, 1, 1, 1, 1, 1, 1, 1, 1, 1, 1, 1, 1, 1, 1, 1, 4], [0, 0.000453872, 0.000891393, 0.001312835, 0.001728009, 0.002134376, 0.002541468, 0.002949043, 0.00336336, 0.003775633, 0.004179123, 0.004573978, 0.004965443, 0.005361289, 0.005761752, 0.006172633, 0.006597866], False, 3, [1, 1, 1, 1, 1, 1, 1, 1, 1, 1, 1, 1, 1, 1, 1, 1, 1, 1, 1], False), False)
sketch2.addConstraint(Sketcher.Constraint("Block", 1))
sketch2.addConstraint(Sketcher.Constraint("Block", 2))
sketch2.addConstraint(Sketcher.Constraint("Block", 3))
sketch2.addConstraint(Sketcher.Constraint("Block", 9))
sketch2.addConstraint(Sketcher.Constraint("Block", 10))
sketch2.addConstraint(Sketcher.Constraint("Block", 11))
sketch2.addConstraint(Sketcher.Constraint("Coincident", 0, 2, 1, 2))
sketch2.addConstraint(Sketcher.Constraint("Coincident", 3, 1, 4, 1))
sketch2.addConstraint(Sketcher.Constraint("Coincident", 4, 2, 5, 1))
sketch2.addConstraint(Sketcher.Constraint("Coincident", 5, 2, 6, 1))
sketch2.addConstraint(Sketcher.Constraint("Coincident", 6, 2, 7, 1))
sketch2.addConstraint(Sketcher.Constraint("Coincident", 7, 2, 8, 1))
sketch2.addConstraint(Sketcher.Constraint("Coincident", 8, 2, 9, 2))
sketch2.addConstraint(Sketcher.Constraint("Coincident", 11, 1, 0, 1))
sketch2.addConstraint(Sketcher.Constraint("Horizontal", 5))
sketch2.addConstraint(Sketcher.Constraint("Vertical", 6))
sketch2.addConstraint(Sketcher.Constraint("Horizontal", 7))
sketch2.addConstraint(Sketcher.Constraint("DistanceX", 7, 2, 7, 1, Q("5.907332 mm")))
sketch2.addConstraint(Sketcher.Constraint("DistanceY", 6, 2, 8, 2, Q("3.388702 mm")))
sketch2.addConstraint(Sketcher.Constraint("DistanceX", 4, 2, 8, 2, Q("5.8997 mm")))
sketch2.addConstraint(Sketcher.Constraint("DistanceX", 5, 1, 5, 2, Q("8.629487 mm")))
sketch2.addConstraint(Sketcher.Constraint("DistanceY", 6, 1, 6, 2, Q("1.302564 mm")))
pocket1 = body.newObject("PartDesign::Pocket", "Pocket")
pocket1.Profile = sketch2
pocket1.Length = 2

doc.recompute()
